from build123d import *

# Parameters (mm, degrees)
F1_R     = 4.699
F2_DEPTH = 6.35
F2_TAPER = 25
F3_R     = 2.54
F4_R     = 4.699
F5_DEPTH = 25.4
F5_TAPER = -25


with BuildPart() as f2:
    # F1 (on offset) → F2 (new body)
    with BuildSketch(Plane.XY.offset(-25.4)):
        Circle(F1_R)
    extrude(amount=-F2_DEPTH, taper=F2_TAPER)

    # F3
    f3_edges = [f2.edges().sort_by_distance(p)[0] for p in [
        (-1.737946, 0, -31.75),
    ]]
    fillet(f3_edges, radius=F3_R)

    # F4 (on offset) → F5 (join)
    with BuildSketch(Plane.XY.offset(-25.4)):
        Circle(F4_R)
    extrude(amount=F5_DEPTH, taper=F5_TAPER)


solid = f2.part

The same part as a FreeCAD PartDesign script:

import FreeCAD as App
import Part
import Sketcher
from FreeCAD import Vector
Q = App.Units.Quantity


def edges_at(feature, points):
    """Names of the edges that pass closest to the given points."""
    edges = feature.Shape.Edges
    near = lambda p: min(range(len(edges)), key=lambda i: edges[i].distToShape(Part.Vertex(*p))[0])
    return sorted({f"Edge{near(p) + 1}" for p in points})

doc = App.newDocument("Part")
params = doc.addObject("Spreadsheet::Sheet", "Params")
for row, (alias, value) in enumerate([
    ("sketch1_diameter", "0.37 in"),
    ("pad1_length", "0.25 in"),
    ("pad1_taper", "-25 deg"),
    ("fillet_radius", "0.1 in"),
    ("sketch2_diameter", "0.37 in"),
    ("pad2_length", "1 in"),
    ("pad2_taper", "25 deg"),
], start=1):
    params.set(f"A{row}", alias)
    params.set(f"B{row}", "=" + value)
    params.setAlias(f"B{row}", alias)

body = doc.addObject("PartDesign::Body", "Body")

sketch1 = doc.addObject("Sketcher::SketchObject", "Sketch")
body.addObject(sketch1)
sketch1.AttachmentSupport = (doc.XY_Plane, [""])
sketch1.MapMode = "FlatFace"
sketch1.AttachmentOffset = App.Placement(Vector(0, 0, -1 * 25.4), App.Rotation())
sketch1.addGeometry(Part.Circle(Vector(0, 0, 0), Vector(0, 0, 1), 4.7), False)
sketch1.addConstraint([
    Sketcher.Constraint("Coincident", 0, 3, -1, 1),
    Sketcher.Constraint("Diameter", 0, Q("0.37 in")),
])
sketch1.setExpression("Constraints[1]", "Params.sketch1_diameter")
pad1 = doc.addObject("PartDesign::Pad", "Pad")
body.addObject(pad1)
pad1.Profile = sketch1
pad1.setExpression("Length", "Params.pad1_length")
pad1.Reversed = True
pad1.setExpression("TaperAngle", "Params.pad1_taper")
doc.recompute()

fillet = doc.addObject("PartDesign::Fillet", "Fillet")
body.addObject(fillet)
fillet.Base = (pad1, edges_at(pad1, [(-1.738, 0, -31.75)]))
fillet.setExpression("Radius", "Params.fillet_radius")

sketch2 = doc.addObject("Sketcher::SketchObject", "Sketch001")
body.addObject(sketch2)
sketch2.AttachmentSupport = (doc.XY_Plane, [""])
sketch2.MapMode = "FlatFace"
sketch2.AttachmentOffset = App.Placement(Vector(0, 0, -1 * 25.4), App.Rotation())
sketch2.addGeometry(Part.Circle(Vector(0, 0, 0), Vector(0, 0, 1), 4.7), False)
sketch2.addConstraint([
    Sketcher.Constraint("Coincident", 0, 3, -1, 1),
    Sketcher.Constraint("Diameter", 0, Q("0.37 in")),
])
sketch2.setExpression("Constraints[1]", "Params.sketch2_diameter")
pad2 = doc.addObject("PartDesign::Pad", "Pad001")
body.addObject(pad2)
pad2.Profile = sketch2
pad2.setExpression("Length", "Params.pad2_length")
pad2.setExpression("TaperAngle", "Params.pad2_taper")

doc.recompute()
